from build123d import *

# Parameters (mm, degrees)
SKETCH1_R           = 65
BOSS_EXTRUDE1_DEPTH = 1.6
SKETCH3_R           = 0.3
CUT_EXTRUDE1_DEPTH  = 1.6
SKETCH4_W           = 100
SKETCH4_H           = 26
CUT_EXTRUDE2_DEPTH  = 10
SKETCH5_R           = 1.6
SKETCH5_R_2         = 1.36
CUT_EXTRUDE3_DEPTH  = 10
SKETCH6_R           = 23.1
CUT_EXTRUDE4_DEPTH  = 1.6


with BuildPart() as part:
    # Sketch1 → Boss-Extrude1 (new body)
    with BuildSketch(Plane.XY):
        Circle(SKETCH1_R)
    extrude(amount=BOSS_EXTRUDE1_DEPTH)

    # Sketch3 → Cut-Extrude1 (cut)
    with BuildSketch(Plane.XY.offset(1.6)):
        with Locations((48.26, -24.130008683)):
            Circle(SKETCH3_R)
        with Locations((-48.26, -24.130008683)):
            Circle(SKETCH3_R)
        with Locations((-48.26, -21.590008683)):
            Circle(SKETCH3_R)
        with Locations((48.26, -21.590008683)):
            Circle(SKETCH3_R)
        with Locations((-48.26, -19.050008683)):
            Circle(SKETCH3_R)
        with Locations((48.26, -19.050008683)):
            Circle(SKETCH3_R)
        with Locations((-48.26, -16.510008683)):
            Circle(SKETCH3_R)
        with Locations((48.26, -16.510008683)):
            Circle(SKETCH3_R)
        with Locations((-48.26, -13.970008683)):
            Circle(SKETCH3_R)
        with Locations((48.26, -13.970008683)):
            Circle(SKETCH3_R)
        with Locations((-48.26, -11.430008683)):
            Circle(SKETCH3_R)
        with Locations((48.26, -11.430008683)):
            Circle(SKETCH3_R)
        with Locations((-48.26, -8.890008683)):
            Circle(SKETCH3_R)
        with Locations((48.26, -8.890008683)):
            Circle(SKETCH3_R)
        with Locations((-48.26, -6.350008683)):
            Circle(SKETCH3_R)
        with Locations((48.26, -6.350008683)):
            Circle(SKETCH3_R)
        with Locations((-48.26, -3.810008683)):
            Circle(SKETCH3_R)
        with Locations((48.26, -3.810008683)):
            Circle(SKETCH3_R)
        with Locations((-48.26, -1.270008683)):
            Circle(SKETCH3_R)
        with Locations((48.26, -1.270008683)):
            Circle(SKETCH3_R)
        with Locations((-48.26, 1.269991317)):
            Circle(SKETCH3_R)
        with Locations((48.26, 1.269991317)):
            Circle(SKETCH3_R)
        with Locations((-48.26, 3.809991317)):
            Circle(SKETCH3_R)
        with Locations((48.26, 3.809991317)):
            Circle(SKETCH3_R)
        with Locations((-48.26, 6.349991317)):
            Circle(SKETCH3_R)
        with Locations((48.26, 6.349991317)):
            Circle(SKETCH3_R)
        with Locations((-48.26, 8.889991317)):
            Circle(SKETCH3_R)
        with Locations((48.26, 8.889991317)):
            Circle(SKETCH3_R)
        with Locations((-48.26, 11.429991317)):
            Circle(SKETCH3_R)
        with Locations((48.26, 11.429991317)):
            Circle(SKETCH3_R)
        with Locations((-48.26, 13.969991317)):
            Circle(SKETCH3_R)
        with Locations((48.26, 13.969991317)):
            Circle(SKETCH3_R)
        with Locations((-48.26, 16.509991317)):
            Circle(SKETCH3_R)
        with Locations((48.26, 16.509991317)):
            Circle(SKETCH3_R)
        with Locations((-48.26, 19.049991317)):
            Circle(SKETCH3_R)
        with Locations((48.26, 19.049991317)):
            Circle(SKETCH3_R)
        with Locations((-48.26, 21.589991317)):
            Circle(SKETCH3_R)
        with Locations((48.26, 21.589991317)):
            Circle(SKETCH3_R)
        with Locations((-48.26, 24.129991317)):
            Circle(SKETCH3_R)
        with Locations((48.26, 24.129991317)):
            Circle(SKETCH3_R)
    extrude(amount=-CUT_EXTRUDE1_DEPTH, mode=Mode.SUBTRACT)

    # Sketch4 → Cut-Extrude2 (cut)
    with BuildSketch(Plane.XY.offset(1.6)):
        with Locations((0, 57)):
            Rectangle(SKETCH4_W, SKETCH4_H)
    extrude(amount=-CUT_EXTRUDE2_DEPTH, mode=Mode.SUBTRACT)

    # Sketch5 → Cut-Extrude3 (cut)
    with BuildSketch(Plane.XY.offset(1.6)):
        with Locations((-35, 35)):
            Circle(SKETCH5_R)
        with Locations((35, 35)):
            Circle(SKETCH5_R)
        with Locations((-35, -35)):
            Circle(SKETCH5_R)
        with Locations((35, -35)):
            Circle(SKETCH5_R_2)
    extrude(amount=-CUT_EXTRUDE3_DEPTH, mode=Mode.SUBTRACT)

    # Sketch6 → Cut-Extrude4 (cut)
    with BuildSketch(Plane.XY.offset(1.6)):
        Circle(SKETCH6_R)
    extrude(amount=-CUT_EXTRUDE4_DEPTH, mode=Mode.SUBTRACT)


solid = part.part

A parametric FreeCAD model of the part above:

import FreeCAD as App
import Part
import Sketcher

V = App.Vector
Q = App.Units.Quantity

doc = App.newDocument("Part")
body = doc.addObject("PartDesign::Body", "Body")

# Sketch on XY plane
sketch1 = body.newObject("Sketcher::SketchObject", "Sketch")
sketch1.AttachmentSupport = (doc.getObject("XY_Plane"), [""])
sketch1.MapMode = "FlatFace"
sketch1.addGeometry(Part.Circle(V(0, 0, 0), V(0, 0, 1), 65), False)
sketch1.addConstraint([
    Sketcher.Constraint("Coincident", 0, 3, -1, 1),
    Sketcher.Constraint("Diameter", 0, Q("130 mm")),
])
pad1 = body.newObject("PartDesign::Pad", "Pad")
pad1.Profile = sketch1
pad1.Length = 1.6

# Sketch on XY plane
sketch2 = body.newObject("Sketcher::SketchObject", "Sketch001")
sketch2.AttachmentSupport = (doc.getObject("XY_Plane"), [""])
sketch2.MapMode = "FlatFace"
sketch2.AttachmentOffset = App.Placement(V(0, 0, 1.6), App.Rotation())
sketch2.addGeometry([
    Part.Circle(V(48.26, -24.130009, 0), V(0, 0, 1), 0.3),  # 0
    Part.Circle(V(-48.26, -24.130009, 0), V(0, 0, 1), 0.3),  # 1
    Part.Circle(V(-48.26, -21.590009, 0), V(0, 0, 1), 0.3),  # 2
    Part.Circle(V(48.26, -21.590009, 0), V(0, 0, 1), 0.3),  # 3
    Part.Circle(V(-48.26, -19.050009, 0), V(0, 0, 1), 0.3),  # 4
    Part.Circle(V(48.26, -19.050009, 0), V(0, 0, 1), 0.3),  # 5
    Part.Circle(V(-48.26, -16.510009, 0), V(0, 0, 1), 0.3),  # 6
    Part.Circle(V(48.26, -16.510009, 0), V(0, 0, 1), 0.3),  # 7
    Part.Circle(V(-48.26, -13.970009, 0), V(0, 0, 1), 0.3),  # 8
    Part.Circle(V(48.26, -13.970009, 0), V(0, 0, 1), 0.3),  # 9
    Part.Circle(V(-48.26, -11.430009, 0), V(0, 0, 1), 0.3),  # 10
    Part.Circle(V(48.26, -11.430009, 0), V(0, 0, 1), 0.3),  # 11
    Part.Circle(V(-48.26, -8.890009, 0), V(0, 0, 1), 0.3),  # 12
    Part.Circle(V(48.26, -8.890009, 0), V(0, 0, 1), 0.3),  # 13
    Part.Circle(V(-48.26, -6.350009, 0), V(0, 0, 1), 0.3),  # 14
    Part.Circle(V(48.26, -6.350009, 0), V(0, 0, 1), 0.3),  # 15
    Part.Circle(V(-48.26, -3.810009, 0), V(0, 0, 1), 0.3),  # 16
    Part.Circle(V(48.26, -3.810009, 0), V(0, 0, 1), 0.3),  # 17
    Part.Circle(V(-48.26, -1.270009, 0), V(0, 0, 1), 0.3),  # 18
    Part.Circle(V(48.26, -1.270009, 0), V(0, 0, 1), 0.3),  # 19
    Part.Circle(V(-48.26, 1.269991, 0), V(0, 0, 1), 0.3),  # 20
    Part.Circle(V(48.26, 1.269991, 0), V(0, 0, 1), 0.3),  # 21
    Part.Circle(V(-48.26, 3.809991, 0), V(0, 0, 1), 0.3),  # 22
    Part.Circle(V(48.26, 3.809991, 0), V(0, 0, 1), 0.3),  # 23
    Part.Circle(V(-48.26, 6.349991, 0), V(0, 0, 1), 0.3),  # 24
    Part.Circle(V(48.26, 6.349991, 0), V(0, 0, 1), 0.3),  # 25
    Part.Circle(V(-48.26, 8.889991, 0), V(0, 0, 1), 0.3),  # 26
    Part.Circle(V(48.26, 8.889991, 0), V(0, 0, 1), 0.3),  # 27
    Part.Circle(V(-48.26, 11.429991, 0), V(0, 0, 1), 0.3),  # 28
    Part.Circle(V(48.26, 11.429991, 0), V(0, 0, 1), 0.3),  # 29
    Part.Circle(V(-48.26, 13.969991, 0), V(0, 0, 1), 0.3),  # 30
    Part.Circle(V(48.26, 13.969991, 0), V(0, 0, 1), 0.3),  # 31
    Part.Circle(V(-48.26, 16.509991, 0), V(0, 0, 1), 0.3),  # 32
    Part.Circle(V(48.26, 16.509991, 0), V(0, 0, 1), 0.3),  # 33
    Part.Circle(V(-48.26, 19.049991, 0), V(0, 0, 1), 0.3),  # 34
    Part.Circle(V(48.26, 19.049991, 0), V(0, 0, 1), 0.3),  # 35
    Part.Circle(V(-48.26, 21.589991, 0), V(0, 0, 1), 0.3),  # 36
    Part.Circle(V(48.26, 21.589991, 0), V(0, 0, 1), 0.3),  # 37
    Part.Circle(V(-48.26, 24.129991, 0), V(0, 0, 1), 0.3),  # 38
    Part.Circle(V(48.26, 24.129991, 0), V(0, 0, 1), 0.3),  # 39
], False)
sketch2.addConstraint([
    Sketcher.Constraint("Equal", 0, 1),
    Sketcher.Constraint("Equal", 1, 2),
    Sketcher.Constraint("Equal", 2, 3),
    Sketcher.Constraint("Equal", 3, 4),
    Sketcher.Constraint("Equal", 4, 5),
    Sketcher.Constraint("Equal", 5, 6),
    Sketcher.Constraint("Equal", 6, 7),
    Sketcher.Constraint("Equal", 7, 8),
    Sketcher.Constraint("Equal", 8, 9),
    Sketcher.Constraint("Equal", 9, 10),
    Sketcher.Constraint("Equal", 10, 11),
    Sketcher.Constraint("Equal", 11, 12),
    Sketcher.Constraint("Equal", 12, 13),
    Sketcher.Constraint("Equal", 13, 14),
    Sketcher.Constraint("Equal", 14, 15),
    Sketcher.Constraint("Equal", 15, 16),
    Sketcher.Constraint("Equal", 16, 17),
    Sketcher.Constraint("Equal", 17, 18),
    Sketcher.Constraint("Equal", 18, 19),
    Sketcher.Constraint("Equal", 19, 20),
    Sketcher.Constraint("Equal", 20, 21),
    Sketcher.Constraint("Equal", 21, 22),
    Sketcher.Constraint("Equal", 22, 23),
    Sketcher.Constraint("Equal", 23, 24),
    Sketcher.Constraint("Equal", 24, 25),
    Sketcher.Constraint("Equal", 25, 26),
    Sketcher.Constraint("Equal", 26, 27),
    Sketcher.Constraint("Equal", 27, 28),
    Sketcher.Constraint("Equal", 28, 29),
    Sketcher.Constraint("Equal", 29, 30),
    Sketcher.Constraint("Equal", 30, 31),
    Sketcher.Constraint("Equal", 31, 32),
    Sketcher.Constraint("Equal", 32, 33),
    Sketcher.Constraint("Equal", 33, 34),
    Sketcher.Constraint("Equal", 34, 35),
    Sketcher.Constraint("Equal", 35, 36),
    Sketcher.Constraint("Equal", 36, 37),
    Sketcher.Constraint("Equal", 37, 38),
    Sketcher.Constraint("Equal", 38, 39),
    Sketcher.Constraint("Symmetric", 0, 3, 1, 3, -2),
    Sketcher.Constraint("Symmetric", 2, 3, 3, 3, -2),
    Sketcher.Constraint("Symmetric", 4, 3, 5, 3, -2),
    Sketcher.Constraint("Symmetric", 6, 3, 7, 3, -2),
    Sketcher.Constraint("Symmetric", 8, 3, 9, 3, -2),
    Sketcher.Constraint("Symmetric", 10, 3, 11, 3, -2),
    Sketcher.Constraint("Symmetric", 12, 3, 13, 3, -2),
    Sketcher.Constraint("Symmetric", 14, 3, 15, 3, -2),
    Sketcher.Constraint("Symmetric", 16, 3, 17, 3, -2),
    Sketcher.Constraint("Symmetric", 18, 3, 19, 3, -2),
    Sketcher.Constraint("Symmetric", 20, 3, 21, 3, -2),
    Sketcher.Constraint("Symmetric", 22, 3, 23, 3, -2),
    Sketcher.Constraint("Symmetric", 24, 3, 25, 3, -2),
    Sketcher.Constraint("Symmetric", 26, 3, 27, 3, -2),
    Sketcher.Constraint("Symmetric", 28, 3, 29, 3, -2),
    Sketcher.Constraint("Symmetric", 30, 3, 31, 3, -2),
    Sketcher.Constraint("Symmetric", 32, 3, 33, 3, -2),
    Sketcher.Constraint("Symmetric", 34, 3, 35, 3, -2),
    Sketcher.Constraint("Symmetric", 36, 3, 37, 3, -2),
    Sketcher.Constraint("Symmetric", 38, 3, 39, 3, -2),
    Sketcher.Constraint("Vertical", 1, 3, 2, 3),
    Sketcher.Constraint("Vertical", 2, 3, 4, 3),
    Sketcher.Constraint("Vertical", 4, 3, 6, 3),
    Sketcher.Constraint("Vertical", 6, 3, 8, 3),
    Sketcher.Constraint("Vertical", 8, 3, 10, 3),
    Sketcher.Constraint("Vertical", 10, 3, 12, 3),
    Sketcher.Constraint("Vertical", 12, 3, 14, 3),
    Sketcher.Constraint("Vertical", 14, 3, 16, 3),
    Sketcher.Constraint("Vertical", 16, 3, 18, 3),
    Sketcher.Constraint("Vertical", 18, 3, 20, 3),
    Sketcher.Constraint("Vertical", 20, 3, 22, 3),
    Sketcher.Constraint("Vertical", 22, 3, 24, 3),
    Sketcher.Constraint("Vertical", 24, 3, 26, 3),
    Sketcher.Constraint("Vertical", 26, 3, 28, 3),
    Sketcher.Constraint("Vertical", 28, 3, 30, 3),
    Sketcher.Constraint("Vertical", 30, 3, 32, 3),
    Sketcher.Constraint("Vertical", 32, 3, 34, 3),
    Sketcher.Constraint("Vertical", 34, 3, 36, 3),
    Sketcher.Constraint("Vertical", 36, 3, 38, 3),
    Sketcher.Constraint("Diameter", 0, Q("0.6 mm")),
    Sketcher.Constraint("DistanceY", 1, 3, 10, 3, Q("12.7 mm")),
    Sketcher.Constraint("DistanceY", 2, 3, 12, 3, Q("12.7 mm")),
    Sketcher.Constraint("DistanceY", 4, 3, 14, 3, Q("12.7 mm")),
    Sketcher.Constraint("DistanceY", 6, 3, 16, 3, Q("12.7 mm")),
    Sketcher.Constraint("DistanceY", 8, 3, 18, 3, Q("12.7 mm")),
    Sketcher.Constraint("DistanceY", 10, 3, 20, 3, Q("12.7 mm")),
    Sketcher.Constraint("DistanceY", 12, 3, 22, 3, Q("12.7 mm")),
    Sketcher.Constraint("DistanceY", 14, 3, 24, 3, Q("12.7 mm")),
    Sketcher.Constraint("DistanceY", 16, 3, 26, 3, Q("12.7 mm")),
    Sketcher.Constraint("DistanceY", 18, 3, 28, 3, Q("12.7 mm")),
    Sketcher.Constraint("DistanceY", 20, 3, 30, 3, Q("12.7 mm")),
    Sketcher.Constraint("DistanceY", 22, 3, 32, 3, Q("12.7 mm")),
    Sketcher.Constraint("DistanceY", 24, 3, 34, 3, Q("12.7 mm")),
    Sketcher.Constraint("DistanceY", 26, 3, 36, 3, Q("12.7 mm")),
    Sketcher.Constraint("DistanceY", 28, 3, 38, 3, Q("12.7 mm")),
    Sketcher.Constraint("DistanceX", -1, 1, 0, 3, Q("48.26 mm")),
    Sketcher.Constraint("DistanceY", 1, 3, 2, 3, Q("2.54 mm")),
    Sketcher.Constraint("DistanceY", 2, 3, 4, 3, Q("2.54 mm")),
    Sketcher.Constraint("DistanceY", 4, 3, 6, 3, Q("2.54 mm")),
    Sketcher.Constraint("DistanceY", 6, 3, 8, 3, Q("2.54 mm")),
    Sketcher.Constraint("DistanceY", 0, 3, -1, 1, Q("24.130009 mm")),
])
pocket1 = body.newObject("PartDesign::Pocket", "Pocket")
pocket1.Profile = sketch2
pocket1.Length = 1.6

# Sketch on XY plane
sketch3 = body.newObject("Sketcher::SketchObject", "Sketch002")
sketch3.AttachmentSupport = (doc.getObject("XY_Plane"), [""])
sketch3.MapMode = "FlatFace"
sketch3.AttachmentOffset = App.Placement(V(0, 0, 1.6), App.Rotation())
sketch3.addGeometry([
    Part.LineSegment(V(-50, 70, 0), V(-50, 44, 0)),
    Part.LineSegment(V(-50, 44, 0), V(50, 44, 0)),
    Part.LineSegment(V(50, 44, 0), V(50, 70, 0)),
    Part.LineSegment(V(50, 70, 0), V(-50, 70, 0)),
], False)
sketch3.addConstraint([
    Sketcher.Constraint("Coincident", 0, 2, 1, 1),
    Sketcher.Constraint("Coincident", 1, 2, 2, 1),
    Sketcher.Constraint("Coincident", 2, 2, 3, 1),
    Sketcher.Constraint("Coincident", 3, 2, 0, 1),
    Sketcher.Constraint("Vertical", 0),
    Sketcher.Constraint("Horizontal", 1),
    Sketcher.Constraint("Vertical", 2),
    Sketcher.Constraint("Horizontal", 3),
    Sketcher.Constraint("DistanceX", 1, 1, 1, 2, Q("100 mm")),
    Sketcher.Constraint("DistanceY", 0, 2, 0, 1, Q("26 mm")),
    Sketcher.Constraint("DistanceX", 0, 2, -1, 1, Q("50 mm")),
    Sketcher.Constraint("DistanceY", -1, 1, 0, 2, Q("44 mm")),
])
pocket2 = body.newObject("PartDesign::Pocket", "Pocket001")
pocket2.Profile = sketch3
pocket2.Length = 10

# Sketch on XY plane
sketch4 = body.newObject("Sketcher::SketchObject", "Sketch003")
sketch4.AttachmentSupport = (doc.getObject("XY_Plane"), [""])
sketch4.MapMode = "FlatFace"
sketch4.AttachmentOffset = App.Placement(V(0, 0, 1.6), App.Rotation())
sketch4.addGeometry([
    Part.Circle(V(-35, 35, 0), V(0, 0, 1), 1.6),
    Part.Circle(V(35, 35, 0), V(0, 0, 1), 1.6),
    Part.Circle(V(-35, -35, 0), V(0, 0, 1), 1.6),
    Part.Circle(V(35, -35, 0), V(0, 0, 1), 1.36),
], False)
sketch4.addConstraint([
    Sketcher.Constraint("Equal", 0, 1),
    Sketcher.Constraint("Equal", 1, 2),
    Sketcher.Constraint("Symmetric", 1, 3, 2, 3, -1, 1),
    Sketcher.Constraint("Symmetric", 0, 3, 3, 3, -1, 1),
    Sketcher.Constraint("Symmetric", 0, 3, 1, 3, -2),
    Sketcher.Constraint("Diameter", 0, Q("3.2 mm")),
    Sketcher.Constraint("Diameter", 3, Q("2.72 mm")),
    Sketcher.Constraint("DistanceX", 0, 3, -1, 1, Q("35 mm")),
    Sketcher.Constraint("DistanceY", -1, 1, 0, 3, Q("35 mm")),
])
pocket3 = body.newObject("PartDesign::Pocket", "Pocket002")
pocket3.Profile = sketch4
pocket3.Length = 10

# Sketch on XY plane
sketch5 = body.newObject("Sketcher::SketchObject", "Sketch004")
sketch5.AttachmentSupport = (doc.getObject("XY_Plane"), [""])
sketch5.MapMode = "FlatFace"
sketch5.AttachmentOffset = App.Placement(V(0, 0, 1.6), App.Rotation())
sketch5.addGeometry(Part.Circle(V(0, 0, 0), V(0, 0, 1), 23.1), False)
sketch5.addConstraint([
    Sketcher.Constraint("Coincident", 0, 3, -1, 1),
    Sketcher.Constraint("Diameter", 0, Q("46.2 mm")),
])
pocket4 = body.newObject("PartDesign::Pocket", "Pocket003")
pocket4.Profile = sketch5
pocket4.Length = 1.6

doc.recompute()
